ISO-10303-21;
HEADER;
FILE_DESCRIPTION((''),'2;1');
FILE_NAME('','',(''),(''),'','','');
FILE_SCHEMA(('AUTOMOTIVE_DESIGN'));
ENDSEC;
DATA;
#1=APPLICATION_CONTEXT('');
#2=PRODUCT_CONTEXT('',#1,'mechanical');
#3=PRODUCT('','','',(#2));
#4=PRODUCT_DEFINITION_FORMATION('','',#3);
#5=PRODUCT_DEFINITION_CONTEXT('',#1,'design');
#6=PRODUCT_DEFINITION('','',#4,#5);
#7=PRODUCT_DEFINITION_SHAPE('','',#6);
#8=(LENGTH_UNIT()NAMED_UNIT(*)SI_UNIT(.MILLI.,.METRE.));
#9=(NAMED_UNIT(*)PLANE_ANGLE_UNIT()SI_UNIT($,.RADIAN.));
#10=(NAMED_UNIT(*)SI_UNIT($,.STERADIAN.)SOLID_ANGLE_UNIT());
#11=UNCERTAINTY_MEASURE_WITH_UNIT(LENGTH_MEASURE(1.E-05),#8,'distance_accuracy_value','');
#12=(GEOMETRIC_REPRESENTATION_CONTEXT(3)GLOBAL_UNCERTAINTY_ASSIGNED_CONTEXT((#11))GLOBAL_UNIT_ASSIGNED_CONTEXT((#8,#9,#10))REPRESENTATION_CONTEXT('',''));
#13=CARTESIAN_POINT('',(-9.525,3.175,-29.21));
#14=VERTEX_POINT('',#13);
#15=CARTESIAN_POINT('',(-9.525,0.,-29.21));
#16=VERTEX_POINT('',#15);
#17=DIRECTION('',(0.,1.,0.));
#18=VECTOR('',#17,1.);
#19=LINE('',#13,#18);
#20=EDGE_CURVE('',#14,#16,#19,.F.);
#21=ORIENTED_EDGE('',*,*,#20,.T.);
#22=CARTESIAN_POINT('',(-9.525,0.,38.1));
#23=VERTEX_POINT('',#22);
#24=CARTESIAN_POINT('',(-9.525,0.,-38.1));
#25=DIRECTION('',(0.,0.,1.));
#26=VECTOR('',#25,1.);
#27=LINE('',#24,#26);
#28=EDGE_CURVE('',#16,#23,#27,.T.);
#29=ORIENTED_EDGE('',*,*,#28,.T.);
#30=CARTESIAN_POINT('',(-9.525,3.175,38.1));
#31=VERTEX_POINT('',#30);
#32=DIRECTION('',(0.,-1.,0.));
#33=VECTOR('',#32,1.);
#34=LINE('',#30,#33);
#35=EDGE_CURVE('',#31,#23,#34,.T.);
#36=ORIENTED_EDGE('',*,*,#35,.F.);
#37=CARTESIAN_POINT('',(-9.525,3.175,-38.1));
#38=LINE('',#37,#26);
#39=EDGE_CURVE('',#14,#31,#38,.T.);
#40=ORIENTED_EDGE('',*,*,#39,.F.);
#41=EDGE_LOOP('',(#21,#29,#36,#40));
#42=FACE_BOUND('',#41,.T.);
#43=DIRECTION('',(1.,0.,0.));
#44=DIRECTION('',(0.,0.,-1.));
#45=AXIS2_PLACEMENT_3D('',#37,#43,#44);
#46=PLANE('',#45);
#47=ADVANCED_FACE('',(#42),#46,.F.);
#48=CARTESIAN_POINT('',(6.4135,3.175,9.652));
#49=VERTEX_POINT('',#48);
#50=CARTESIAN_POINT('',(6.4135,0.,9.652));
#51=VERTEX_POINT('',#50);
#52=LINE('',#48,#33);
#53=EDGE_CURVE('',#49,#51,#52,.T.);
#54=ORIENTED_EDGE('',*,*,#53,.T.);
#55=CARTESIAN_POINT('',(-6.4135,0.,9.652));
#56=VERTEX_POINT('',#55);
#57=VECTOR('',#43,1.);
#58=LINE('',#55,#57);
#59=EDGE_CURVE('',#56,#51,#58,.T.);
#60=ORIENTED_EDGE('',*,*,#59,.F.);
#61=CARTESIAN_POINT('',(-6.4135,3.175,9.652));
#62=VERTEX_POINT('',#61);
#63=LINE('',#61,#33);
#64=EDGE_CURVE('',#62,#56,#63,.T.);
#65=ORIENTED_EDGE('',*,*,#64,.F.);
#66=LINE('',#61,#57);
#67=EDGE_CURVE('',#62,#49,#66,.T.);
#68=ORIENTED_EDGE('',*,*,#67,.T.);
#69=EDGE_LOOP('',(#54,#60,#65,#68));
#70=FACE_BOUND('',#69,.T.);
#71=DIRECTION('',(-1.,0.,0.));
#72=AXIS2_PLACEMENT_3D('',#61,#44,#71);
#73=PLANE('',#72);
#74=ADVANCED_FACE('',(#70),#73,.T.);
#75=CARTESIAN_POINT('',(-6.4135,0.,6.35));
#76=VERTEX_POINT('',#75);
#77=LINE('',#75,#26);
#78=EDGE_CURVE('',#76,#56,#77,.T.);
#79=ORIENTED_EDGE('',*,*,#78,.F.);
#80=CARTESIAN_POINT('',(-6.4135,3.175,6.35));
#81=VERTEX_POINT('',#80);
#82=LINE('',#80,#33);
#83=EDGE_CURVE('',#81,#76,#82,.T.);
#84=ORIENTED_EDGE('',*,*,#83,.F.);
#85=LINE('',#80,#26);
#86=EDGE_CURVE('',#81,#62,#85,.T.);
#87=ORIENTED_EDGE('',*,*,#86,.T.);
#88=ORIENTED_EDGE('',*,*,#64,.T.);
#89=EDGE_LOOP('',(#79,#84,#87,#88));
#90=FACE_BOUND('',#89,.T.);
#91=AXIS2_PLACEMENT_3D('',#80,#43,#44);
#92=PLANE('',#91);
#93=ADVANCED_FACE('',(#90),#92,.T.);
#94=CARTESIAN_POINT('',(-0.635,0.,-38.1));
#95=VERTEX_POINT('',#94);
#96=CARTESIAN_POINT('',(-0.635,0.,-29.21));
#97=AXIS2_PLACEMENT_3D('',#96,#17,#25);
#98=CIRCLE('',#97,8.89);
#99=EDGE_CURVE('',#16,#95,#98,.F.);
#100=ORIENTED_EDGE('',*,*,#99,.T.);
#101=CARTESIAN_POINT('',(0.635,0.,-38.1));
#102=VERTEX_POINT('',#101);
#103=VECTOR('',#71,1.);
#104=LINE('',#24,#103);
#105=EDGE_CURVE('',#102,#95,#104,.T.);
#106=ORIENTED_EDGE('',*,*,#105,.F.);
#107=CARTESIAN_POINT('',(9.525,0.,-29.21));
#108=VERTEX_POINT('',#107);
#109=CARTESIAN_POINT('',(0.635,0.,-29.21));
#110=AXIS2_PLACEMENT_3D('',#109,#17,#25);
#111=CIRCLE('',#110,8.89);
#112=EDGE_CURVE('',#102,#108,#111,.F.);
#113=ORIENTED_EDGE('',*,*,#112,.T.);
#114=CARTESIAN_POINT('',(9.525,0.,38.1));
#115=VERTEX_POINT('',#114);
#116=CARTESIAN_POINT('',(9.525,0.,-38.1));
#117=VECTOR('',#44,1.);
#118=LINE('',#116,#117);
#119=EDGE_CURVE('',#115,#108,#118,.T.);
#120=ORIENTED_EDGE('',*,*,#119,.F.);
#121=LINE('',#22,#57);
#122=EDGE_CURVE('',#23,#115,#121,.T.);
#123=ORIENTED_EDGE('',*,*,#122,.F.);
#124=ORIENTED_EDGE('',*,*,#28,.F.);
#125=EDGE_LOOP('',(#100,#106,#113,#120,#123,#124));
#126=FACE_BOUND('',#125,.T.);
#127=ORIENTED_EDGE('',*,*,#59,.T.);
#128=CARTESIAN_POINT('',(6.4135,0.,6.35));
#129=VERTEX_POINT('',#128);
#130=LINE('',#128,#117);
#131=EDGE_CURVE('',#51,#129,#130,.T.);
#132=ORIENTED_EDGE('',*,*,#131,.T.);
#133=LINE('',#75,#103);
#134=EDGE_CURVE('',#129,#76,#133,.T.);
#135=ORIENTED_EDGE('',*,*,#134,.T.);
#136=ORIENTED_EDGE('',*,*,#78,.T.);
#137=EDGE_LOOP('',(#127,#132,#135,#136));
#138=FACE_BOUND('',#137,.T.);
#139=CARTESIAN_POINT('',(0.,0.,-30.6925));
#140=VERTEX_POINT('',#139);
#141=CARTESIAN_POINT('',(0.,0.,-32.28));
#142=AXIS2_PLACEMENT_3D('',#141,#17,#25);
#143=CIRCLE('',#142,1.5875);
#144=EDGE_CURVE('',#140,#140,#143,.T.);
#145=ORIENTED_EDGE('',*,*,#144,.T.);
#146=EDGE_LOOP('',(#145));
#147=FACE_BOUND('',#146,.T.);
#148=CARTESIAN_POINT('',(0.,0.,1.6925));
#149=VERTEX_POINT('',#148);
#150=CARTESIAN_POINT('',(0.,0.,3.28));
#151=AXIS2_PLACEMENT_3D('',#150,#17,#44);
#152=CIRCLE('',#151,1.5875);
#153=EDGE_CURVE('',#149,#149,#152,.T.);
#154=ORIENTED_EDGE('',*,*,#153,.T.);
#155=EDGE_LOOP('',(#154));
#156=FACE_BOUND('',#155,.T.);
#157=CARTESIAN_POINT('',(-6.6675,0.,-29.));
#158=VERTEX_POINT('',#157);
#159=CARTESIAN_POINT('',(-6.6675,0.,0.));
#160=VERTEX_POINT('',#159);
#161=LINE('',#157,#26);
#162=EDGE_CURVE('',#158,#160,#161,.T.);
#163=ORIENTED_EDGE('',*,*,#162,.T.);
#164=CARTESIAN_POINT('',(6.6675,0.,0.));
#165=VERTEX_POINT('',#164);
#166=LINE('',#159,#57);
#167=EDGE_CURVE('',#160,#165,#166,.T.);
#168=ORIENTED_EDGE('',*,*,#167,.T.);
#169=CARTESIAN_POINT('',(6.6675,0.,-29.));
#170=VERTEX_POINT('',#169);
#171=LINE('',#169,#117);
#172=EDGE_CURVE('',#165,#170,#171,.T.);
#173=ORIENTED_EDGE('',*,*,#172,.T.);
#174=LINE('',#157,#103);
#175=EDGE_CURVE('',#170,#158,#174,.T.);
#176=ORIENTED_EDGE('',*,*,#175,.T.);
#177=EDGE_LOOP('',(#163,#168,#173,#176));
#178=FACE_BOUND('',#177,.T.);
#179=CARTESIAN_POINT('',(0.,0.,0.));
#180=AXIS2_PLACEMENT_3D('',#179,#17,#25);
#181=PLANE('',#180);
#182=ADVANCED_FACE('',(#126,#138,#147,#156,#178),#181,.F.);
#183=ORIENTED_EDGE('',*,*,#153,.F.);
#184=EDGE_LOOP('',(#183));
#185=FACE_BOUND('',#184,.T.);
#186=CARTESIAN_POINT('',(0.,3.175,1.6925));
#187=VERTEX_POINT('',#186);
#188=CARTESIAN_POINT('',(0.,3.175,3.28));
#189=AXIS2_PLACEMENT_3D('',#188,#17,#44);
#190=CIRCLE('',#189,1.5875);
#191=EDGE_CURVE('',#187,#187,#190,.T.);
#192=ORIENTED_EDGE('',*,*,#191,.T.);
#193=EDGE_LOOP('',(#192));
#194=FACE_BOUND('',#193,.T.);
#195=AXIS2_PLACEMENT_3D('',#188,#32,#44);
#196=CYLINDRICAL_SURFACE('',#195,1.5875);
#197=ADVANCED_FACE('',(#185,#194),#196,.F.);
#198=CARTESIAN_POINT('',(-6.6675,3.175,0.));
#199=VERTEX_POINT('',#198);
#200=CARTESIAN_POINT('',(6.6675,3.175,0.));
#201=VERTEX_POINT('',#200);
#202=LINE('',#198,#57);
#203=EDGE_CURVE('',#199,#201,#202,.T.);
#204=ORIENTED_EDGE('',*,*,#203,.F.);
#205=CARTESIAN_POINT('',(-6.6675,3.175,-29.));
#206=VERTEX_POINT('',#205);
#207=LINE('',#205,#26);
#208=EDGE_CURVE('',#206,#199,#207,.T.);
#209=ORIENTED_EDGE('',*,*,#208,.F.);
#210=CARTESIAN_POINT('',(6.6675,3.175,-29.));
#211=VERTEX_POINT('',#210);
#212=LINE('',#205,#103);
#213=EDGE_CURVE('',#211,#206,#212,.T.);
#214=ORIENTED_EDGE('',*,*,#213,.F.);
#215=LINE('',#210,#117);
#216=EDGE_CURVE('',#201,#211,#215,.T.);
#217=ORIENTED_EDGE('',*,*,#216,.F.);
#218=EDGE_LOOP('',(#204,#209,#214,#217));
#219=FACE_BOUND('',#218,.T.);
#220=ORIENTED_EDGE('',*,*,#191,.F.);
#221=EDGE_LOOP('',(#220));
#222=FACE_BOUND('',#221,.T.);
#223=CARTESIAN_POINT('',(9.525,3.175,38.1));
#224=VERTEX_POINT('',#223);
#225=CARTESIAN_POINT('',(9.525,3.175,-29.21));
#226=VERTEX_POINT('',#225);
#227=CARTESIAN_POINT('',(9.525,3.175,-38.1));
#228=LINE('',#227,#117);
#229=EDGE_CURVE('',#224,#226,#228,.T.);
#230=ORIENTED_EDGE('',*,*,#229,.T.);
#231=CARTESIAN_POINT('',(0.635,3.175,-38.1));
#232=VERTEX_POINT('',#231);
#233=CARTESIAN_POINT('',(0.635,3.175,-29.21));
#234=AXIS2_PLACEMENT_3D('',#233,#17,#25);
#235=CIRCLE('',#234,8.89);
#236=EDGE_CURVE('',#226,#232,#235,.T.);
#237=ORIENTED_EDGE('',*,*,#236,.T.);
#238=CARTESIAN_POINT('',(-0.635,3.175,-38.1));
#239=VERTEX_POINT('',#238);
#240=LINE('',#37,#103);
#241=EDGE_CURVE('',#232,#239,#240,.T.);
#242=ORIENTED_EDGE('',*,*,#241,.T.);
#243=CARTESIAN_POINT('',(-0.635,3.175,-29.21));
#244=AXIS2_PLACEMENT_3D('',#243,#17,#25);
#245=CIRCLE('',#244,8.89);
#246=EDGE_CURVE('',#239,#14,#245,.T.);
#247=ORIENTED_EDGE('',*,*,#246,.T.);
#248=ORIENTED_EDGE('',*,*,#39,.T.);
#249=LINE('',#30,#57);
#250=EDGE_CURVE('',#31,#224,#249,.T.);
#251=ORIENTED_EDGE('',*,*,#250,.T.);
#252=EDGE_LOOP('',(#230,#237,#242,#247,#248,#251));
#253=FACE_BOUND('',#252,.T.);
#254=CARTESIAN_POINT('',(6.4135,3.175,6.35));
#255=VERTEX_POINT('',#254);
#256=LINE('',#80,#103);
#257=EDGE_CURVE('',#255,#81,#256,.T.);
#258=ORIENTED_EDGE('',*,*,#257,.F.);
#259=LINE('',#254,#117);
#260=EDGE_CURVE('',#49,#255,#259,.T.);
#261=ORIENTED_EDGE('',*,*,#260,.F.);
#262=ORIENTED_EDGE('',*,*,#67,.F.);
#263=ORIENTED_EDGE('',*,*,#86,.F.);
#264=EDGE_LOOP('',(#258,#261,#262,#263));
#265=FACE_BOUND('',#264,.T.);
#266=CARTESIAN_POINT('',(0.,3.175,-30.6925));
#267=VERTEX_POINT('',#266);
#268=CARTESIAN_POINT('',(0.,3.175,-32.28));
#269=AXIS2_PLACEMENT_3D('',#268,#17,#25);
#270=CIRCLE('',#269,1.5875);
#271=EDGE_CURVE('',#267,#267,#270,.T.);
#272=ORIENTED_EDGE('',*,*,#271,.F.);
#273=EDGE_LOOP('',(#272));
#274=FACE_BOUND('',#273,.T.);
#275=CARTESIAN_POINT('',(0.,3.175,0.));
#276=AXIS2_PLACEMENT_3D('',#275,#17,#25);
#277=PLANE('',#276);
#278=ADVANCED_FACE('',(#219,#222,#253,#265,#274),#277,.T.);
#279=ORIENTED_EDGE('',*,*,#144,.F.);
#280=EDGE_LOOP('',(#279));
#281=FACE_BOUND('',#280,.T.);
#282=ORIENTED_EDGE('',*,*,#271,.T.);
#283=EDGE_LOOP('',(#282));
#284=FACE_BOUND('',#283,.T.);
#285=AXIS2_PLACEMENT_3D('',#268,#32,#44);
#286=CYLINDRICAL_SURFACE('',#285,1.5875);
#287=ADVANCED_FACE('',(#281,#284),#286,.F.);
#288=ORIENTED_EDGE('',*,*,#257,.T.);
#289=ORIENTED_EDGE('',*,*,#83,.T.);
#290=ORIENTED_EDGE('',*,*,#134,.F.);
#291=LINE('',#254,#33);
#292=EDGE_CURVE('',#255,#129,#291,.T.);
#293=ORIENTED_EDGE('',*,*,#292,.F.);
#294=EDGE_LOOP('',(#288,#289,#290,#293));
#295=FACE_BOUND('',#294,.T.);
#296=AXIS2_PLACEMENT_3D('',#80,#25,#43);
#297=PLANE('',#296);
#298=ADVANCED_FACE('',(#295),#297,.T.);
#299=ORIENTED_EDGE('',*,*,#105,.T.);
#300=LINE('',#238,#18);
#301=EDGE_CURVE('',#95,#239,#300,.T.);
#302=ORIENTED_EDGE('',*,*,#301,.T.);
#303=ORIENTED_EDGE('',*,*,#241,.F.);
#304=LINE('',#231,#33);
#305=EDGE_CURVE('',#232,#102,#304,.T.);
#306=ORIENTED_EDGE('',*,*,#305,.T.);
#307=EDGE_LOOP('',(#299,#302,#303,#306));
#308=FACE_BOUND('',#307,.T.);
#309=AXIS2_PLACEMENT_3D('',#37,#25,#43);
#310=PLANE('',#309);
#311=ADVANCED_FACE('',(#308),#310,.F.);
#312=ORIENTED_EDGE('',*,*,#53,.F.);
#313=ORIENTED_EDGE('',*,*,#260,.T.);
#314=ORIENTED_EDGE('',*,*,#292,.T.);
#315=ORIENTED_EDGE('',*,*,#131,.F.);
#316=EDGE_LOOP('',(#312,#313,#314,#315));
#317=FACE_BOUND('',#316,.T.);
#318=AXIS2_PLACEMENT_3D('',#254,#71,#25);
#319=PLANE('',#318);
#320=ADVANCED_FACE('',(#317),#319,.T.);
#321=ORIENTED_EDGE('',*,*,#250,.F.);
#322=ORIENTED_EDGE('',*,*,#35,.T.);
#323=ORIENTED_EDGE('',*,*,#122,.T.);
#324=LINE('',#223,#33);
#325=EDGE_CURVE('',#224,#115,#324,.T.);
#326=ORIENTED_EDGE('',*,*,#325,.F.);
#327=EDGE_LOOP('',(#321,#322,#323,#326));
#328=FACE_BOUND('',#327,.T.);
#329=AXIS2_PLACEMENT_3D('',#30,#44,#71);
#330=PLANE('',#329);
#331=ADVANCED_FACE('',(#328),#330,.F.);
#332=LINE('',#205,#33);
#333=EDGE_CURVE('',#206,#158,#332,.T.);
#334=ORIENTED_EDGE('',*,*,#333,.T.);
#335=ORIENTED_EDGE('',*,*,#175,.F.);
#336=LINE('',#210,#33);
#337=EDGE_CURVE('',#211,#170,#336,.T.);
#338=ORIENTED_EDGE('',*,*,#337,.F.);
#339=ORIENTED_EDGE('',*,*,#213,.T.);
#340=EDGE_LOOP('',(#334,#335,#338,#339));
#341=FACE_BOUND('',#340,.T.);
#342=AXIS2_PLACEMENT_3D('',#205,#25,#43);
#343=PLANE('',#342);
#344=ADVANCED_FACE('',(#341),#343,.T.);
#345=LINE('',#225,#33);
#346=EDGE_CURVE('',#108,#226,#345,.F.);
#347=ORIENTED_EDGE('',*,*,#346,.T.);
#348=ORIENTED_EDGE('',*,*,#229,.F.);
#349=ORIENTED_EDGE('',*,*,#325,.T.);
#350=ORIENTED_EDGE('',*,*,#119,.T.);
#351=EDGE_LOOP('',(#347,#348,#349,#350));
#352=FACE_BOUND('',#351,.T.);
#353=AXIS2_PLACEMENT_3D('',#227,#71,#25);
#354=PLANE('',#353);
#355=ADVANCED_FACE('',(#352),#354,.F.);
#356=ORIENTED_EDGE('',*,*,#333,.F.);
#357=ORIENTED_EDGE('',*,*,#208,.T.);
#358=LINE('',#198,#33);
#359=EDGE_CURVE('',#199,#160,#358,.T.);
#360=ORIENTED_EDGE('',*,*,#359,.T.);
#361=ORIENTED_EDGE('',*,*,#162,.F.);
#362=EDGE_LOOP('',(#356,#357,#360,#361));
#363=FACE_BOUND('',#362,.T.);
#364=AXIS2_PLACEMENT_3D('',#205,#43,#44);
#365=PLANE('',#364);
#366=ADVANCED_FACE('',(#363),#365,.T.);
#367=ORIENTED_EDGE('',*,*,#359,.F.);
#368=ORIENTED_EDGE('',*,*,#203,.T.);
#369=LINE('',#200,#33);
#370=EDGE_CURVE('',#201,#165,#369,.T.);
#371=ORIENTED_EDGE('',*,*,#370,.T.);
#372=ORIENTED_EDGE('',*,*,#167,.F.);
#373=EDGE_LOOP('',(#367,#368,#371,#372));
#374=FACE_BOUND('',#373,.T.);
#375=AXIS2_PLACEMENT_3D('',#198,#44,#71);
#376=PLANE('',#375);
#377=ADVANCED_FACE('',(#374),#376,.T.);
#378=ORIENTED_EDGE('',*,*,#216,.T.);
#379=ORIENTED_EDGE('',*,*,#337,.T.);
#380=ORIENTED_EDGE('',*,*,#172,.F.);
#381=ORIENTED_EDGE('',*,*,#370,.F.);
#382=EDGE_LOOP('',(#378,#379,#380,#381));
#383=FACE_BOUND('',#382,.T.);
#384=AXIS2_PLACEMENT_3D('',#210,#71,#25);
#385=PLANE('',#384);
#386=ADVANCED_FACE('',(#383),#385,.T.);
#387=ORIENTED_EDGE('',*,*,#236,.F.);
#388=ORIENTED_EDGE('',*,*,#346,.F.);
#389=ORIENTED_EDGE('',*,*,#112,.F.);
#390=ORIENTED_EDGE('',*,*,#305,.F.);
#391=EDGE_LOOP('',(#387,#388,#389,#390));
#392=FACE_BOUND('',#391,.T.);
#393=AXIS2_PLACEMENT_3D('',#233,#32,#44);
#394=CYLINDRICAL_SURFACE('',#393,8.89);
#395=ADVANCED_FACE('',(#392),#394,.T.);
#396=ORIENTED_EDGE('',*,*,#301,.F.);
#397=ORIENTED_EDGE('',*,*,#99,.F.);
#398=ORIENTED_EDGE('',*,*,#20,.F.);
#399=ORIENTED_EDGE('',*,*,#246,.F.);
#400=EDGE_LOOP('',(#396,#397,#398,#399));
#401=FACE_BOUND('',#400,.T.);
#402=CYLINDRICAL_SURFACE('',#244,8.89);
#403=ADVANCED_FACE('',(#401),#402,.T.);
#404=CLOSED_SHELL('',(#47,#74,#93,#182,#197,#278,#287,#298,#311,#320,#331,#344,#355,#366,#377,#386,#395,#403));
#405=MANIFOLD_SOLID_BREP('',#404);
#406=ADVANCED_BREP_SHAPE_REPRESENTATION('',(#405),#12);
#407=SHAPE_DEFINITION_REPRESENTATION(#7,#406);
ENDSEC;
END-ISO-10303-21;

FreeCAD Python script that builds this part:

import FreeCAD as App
import Part
import Sketcher
from FreeCAD import Vector
Q = App.Units.Quantity


def edges_at(feature, points):
    """Names of the edges that pass closest to the given points."""
    edges = feature.Shape.Edges
    near = lambda p: min(range(len(edges)), key=lambda i: edges[i].distToShape(Part.Vertex(*p))[0])
    return sorted({f"Edge{near(p) + 1}" for p in points})


def add_polygon(sketch, points):
    """Adds a closed chain of lines whose ends are joined by coincident constraints."""
    first, n = sketch.GeometryCount, len(points)
    for a, b in zip(points, points[1:] + points[:1]):
        sketch.addGeometry(Part.LineSegment(App.Vector(*a, 0), App.Vector(*b, 0)), False)
    for i in range(n):
        sketch.addConstraint(Sketcher.Constraint("Coincident", first + i, 2, first + (i + 1) % n, 1))

doc = App.newDocument("Part")
body = doc.addObject("PartDesign::Body", "Body")

sketch1 = body.newObject("Sketcher::SketchObject", "Sketch")
sketch1.AttachmentSupport = (doc.getObject("XZ_Plane"), [""])
sketch1.MapMode = "FlatFace"
add_polygon(sketch1, [(-9.5, -38.1), (-9.5, 38.1), (9.5, 38.1), (9.5, -38.1)])
add_polygon(sketch1, [(6.4, 9.7), (-6.4, 9.7), (-6.4, 6.3), (6.4, 6.3)])
sketch1.addGeometry(Part.Circle(Vector(0, 3.3, 0), Vector(0, 0, 1), 1.6), False)
add_polygon(sketch1, [(6.7, 0), (-6.7, 0), (-6.7, -29), (6.7, -29)])
sketch1.addGeometry(Part.Circle(Vector(0, -32.3, 0), Vector(0, 0, 1), 1.6), False)
sketch1.addConstraint([
    Sketcher.Constraint("Vertical", 0),
    Sketcher.Constraint("Horizontal", 1),
    Sketcher.Constraint("Vertical", 2),
    Sketcher.Constraint("Horizontal", 3),
    Sketcher.Constraint("Horizontal", 4),
    Sketcher.Constraint("Vertical", 5),
    Sketcher.Constraint("Horizontal", 6),
    Sketcher.Constraint("Vertical", 7),
    Sketcher.Constraint("Horizontal", 9),
    Sketcher.Constraint("Vertical", 10),
    Sketcher.Constraint("Horizontal", 11),
    Sketcher.Constraint("Vertical", 12),
    Sketcher.Constraint("Equal", 8, 13),
    Sketcher.Constraint("Symmetric", 0, 2, 2, 2, -1, 1),
    Sketcher.Constraint("Symmetric", 9, 2, 12, 2, -1, 1),
    Sketcher.Constraint("PointOnObject", 8, 3, -2),
    Sketcher.Constraint("PointOnObject", 13, 3, -2),
    Sketcher.Constraint("DistanceY", 0, 1, 0, 2, Q("3 in")),
    Sketcher.Constraint("Diameter", 8, Q("0.125 in")),
    Sketcher.Constraint("DistanceX", 1, 1, 1, 2, Q("0.75 in")),
    Sketcher.Constraint("DistanceY", 5, 2, 5, 1, Q("0.13 in")),
    Sketcher.Constraint("DistanceY", 13, 3, 8, 3, Q("1.4 in")),
    Sketcher.Constraint("DistanceX", 4, 2, 4, 1, Q("0.505 in")),
    Sketcher.Constraint("DistanceX", 9, 2, 9, 1, Q("0.525 in")),
    Sketcher.Constraint("DistanceY", -1, 1, 4, 2, Q("0.38 in")),
    Sketcher.Constraint("DistanceX", 9, 2, 5, 2, Q("0.01 in")),
    Sketcher.Constraint("DistanceY", 10, 2, 10, 1, Q("29 mm")),
    Sketcher.Constraint("DistanceY", -1, 1, 8, 3, Q("3.28 mm")),
])
pad1 = body.newObject("PartDesign::Pad", "Pad")
pad1.Profile = sketch1
pad1.Length = Q("0.125 in")
pad1.Reversed = True
doc.recompute()

fillet = body.newObject("PartDesign::Fillet", "Fillet")
fillet.Base = (pad1, edges_at(pad1, [(9.525, 1.587, -38.1)]))
fillet.Radius = Q("0.35 in")
doc.recompute()

fillet2 = body.newObject("PartDesign::Fillet", "Fillet001")
fillet2.Base = (fillet, edges_at(fillet, [(-9.525, 1.587, -38.1)]))
fillet2.Radius = Q("0.35 in")

doc.recompute()
